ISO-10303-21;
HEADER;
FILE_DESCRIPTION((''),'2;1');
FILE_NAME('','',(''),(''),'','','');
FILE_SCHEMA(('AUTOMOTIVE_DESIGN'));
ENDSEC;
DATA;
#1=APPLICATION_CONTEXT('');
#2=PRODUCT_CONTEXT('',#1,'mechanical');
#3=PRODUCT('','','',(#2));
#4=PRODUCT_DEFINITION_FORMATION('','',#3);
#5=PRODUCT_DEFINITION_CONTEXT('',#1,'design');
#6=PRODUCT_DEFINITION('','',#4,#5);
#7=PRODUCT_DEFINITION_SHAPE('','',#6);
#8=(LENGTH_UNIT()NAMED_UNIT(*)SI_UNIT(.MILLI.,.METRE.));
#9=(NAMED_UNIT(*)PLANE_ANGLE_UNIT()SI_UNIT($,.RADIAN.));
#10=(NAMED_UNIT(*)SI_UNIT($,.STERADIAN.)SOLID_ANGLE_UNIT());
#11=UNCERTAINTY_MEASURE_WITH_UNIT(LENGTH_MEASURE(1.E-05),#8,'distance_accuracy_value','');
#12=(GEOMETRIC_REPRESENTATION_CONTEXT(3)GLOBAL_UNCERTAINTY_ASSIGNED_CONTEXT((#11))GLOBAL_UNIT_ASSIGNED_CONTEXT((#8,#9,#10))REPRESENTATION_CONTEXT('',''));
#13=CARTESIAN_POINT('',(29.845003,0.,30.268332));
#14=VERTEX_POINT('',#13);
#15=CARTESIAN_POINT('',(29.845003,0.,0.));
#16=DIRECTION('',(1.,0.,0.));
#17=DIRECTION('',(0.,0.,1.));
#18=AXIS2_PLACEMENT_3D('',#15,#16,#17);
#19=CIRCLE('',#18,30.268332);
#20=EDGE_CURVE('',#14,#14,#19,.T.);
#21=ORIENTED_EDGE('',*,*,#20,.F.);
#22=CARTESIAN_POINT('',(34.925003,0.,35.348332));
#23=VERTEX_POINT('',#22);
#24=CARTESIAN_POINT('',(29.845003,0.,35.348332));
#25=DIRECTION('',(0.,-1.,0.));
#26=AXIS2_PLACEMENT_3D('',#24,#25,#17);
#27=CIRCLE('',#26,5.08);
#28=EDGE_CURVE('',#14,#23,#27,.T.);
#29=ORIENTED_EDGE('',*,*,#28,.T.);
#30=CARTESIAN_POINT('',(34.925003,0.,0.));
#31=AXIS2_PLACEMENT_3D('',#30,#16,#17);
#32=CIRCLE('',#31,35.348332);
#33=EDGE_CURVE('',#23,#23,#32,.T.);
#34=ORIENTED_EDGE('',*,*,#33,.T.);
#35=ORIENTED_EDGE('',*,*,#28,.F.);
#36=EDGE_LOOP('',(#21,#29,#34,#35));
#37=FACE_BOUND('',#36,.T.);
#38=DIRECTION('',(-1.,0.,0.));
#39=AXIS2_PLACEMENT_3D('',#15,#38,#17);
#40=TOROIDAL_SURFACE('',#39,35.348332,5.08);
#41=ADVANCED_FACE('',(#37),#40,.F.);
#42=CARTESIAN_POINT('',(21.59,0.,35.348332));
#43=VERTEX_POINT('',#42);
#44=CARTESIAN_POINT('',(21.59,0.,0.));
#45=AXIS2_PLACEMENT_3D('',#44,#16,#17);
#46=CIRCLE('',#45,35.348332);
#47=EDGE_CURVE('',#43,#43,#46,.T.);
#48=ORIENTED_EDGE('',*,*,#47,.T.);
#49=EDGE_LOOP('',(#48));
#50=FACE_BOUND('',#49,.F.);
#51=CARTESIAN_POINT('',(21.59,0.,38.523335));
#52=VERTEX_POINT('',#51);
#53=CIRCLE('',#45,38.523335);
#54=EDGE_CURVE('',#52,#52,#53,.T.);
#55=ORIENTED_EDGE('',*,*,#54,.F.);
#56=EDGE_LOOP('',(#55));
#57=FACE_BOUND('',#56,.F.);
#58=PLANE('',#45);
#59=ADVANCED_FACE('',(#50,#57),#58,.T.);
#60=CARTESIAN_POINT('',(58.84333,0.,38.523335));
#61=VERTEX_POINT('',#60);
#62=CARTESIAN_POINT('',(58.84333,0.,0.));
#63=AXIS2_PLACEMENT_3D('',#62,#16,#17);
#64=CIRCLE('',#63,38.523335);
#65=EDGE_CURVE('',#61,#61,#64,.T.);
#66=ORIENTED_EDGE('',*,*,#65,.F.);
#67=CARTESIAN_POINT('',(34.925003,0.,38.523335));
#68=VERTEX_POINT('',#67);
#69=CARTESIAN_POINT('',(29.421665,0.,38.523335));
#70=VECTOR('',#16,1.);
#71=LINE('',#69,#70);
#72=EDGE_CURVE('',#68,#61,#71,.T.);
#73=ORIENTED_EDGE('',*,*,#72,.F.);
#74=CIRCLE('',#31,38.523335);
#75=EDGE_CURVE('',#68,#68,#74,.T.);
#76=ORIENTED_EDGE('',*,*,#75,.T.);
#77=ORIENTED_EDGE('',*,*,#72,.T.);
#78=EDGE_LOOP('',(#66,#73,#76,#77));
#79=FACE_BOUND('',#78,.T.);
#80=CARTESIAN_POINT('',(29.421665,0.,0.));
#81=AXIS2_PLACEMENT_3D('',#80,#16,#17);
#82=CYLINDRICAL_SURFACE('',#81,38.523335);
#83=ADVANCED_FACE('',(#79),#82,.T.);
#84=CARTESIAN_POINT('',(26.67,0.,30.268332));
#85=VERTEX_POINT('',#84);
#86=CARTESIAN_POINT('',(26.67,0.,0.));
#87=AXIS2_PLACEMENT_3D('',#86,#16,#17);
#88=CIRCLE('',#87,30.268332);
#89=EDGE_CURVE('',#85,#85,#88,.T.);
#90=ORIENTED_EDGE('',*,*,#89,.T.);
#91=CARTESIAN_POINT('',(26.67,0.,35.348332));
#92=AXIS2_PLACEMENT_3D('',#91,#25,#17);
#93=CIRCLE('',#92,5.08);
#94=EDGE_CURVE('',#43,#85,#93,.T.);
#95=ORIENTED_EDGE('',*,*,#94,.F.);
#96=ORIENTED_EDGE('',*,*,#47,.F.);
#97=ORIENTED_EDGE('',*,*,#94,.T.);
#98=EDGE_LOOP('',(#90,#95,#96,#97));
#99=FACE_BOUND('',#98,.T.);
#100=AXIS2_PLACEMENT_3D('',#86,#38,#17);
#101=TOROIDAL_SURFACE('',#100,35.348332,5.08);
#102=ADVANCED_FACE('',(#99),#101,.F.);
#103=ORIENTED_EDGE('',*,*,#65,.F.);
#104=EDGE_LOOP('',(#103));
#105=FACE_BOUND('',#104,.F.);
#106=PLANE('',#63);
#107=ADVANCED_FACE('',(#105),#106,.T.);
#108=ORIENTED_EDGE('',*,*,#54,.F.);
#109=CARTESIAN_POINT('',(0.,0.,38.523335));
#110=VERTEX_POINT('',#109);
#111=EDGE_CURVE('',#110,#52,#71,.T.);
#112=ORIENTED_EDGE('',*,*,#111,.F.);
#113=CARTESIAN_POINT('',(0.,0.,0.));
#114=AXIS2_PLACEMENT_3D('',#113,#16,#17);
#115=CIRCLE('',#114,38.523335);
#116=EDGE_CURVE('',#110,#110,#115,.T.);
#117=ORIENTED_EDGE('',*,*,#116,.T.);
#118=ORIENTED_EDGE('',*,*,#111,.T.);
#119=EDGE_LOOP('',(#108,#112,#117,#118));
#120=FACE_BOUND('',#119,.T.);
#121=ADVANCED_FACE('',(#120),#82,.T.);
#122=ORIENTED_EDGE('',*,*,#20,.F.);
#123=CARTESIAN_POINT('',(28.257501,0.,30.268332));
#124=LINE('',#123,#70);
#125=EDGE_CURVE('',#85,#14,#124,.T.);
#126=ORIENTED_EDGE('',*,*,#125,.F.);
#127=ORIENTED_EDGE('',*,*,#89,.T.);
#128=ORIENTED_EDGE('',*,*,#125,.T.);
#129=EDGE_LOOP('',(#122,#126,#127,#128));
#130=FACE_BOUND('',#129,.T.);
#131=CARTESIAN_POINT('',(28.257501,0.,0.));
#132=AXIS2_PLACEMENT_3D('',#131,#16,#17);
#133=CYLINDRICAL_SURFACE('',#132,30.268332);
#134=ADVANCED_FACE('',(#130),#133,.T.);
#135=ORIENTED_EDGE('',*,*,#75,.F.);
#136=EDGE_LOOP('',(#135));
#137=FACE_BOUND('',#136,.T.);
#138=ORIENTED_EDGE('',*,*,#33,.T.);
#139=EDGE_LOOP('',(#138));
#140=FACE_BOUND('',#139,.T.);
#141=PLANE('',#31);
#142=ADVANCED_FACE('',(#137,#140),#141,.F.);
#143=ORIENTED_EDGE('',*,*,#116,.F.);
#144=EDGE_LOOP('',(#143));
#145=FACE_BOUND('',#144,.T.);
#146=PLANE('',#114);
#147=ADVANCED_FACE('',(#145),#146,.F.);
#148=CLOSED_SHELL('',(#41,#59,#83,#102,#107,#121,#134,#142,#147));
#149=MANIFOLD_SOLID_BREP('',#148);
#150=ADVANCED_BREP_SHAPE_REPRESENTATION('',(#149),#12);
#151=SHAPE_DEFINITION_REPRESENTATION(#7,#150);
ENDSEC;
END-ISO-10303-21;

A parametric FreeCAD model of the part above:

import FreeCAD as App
import Part
import Sketcher
Q = App.Units.Quantity


def edges_at(feature, points):
    """Names of the edges that pass closest to the given points."""
    edges = feature.Shape.Edges
    near = lambda p: min(range(len(edges)), key=lambda i: edges[i].distToShape(Part.Vertex(*p))[0])
    return sorted({f"Edge{near(p) + 1}" for p in points})


def add_polygon(sketch, points):
    """Adds a closed chain of lines whose ends are joined by coincident constraints."""
    first, n = sketch.GeometryCount, len(points)
    for a, b in zip(points, points[1:] + points[:1]):
        sketch.addGeometry(Part.LineSegment(App.Vector(*a, 0), App.Vector(*b, 0)), False)
    for i in range(n):
        sketch.addConstraint(Sketcher.Constraint("Coincident", first + i, 2, first + (i + 1) % n, 1))

doc = App.newDocument("Part")
body = doc.addObject("PartDesign::Body", "Body")

sketch1 = body.newObject("Sketcher::SketchObject", "Sketch")
sketch1.AttachmentSupport = (doc.getObject("XZ_Plane"), [""])
sketch1.MapMode = "FlatFace"
add_polygon(sketch1, [(0, 39), (0, 0), (59, 0), (59, 39)])
sketch1.addConstraint(Sketcher.Constraint("Vertical", 0))
sketch1.addConstraint(Sketcher.Constraint("Horizontal", 1))
sketch1.addConstraint(Sketcher.Constraint("Vertical", 2))
sketch1.addConstraint(Sketcher.Constraint("Horizontal", 3))
sketch1.addConstraint(Sketcher.Constraint("Coincident", 0, 2, -1, 1))
sketch1.addConstraint(Sketcher.Constraint("DistanceX", 1, 1, 1, 2, 58.84333))
sketch1.addConstraint(Sketcher.Constraint("DistanceY", 0, 2, 0, 1, 38.523335))
revolution = body.newObject("PartDesign::Revolution", "Revolution")
revolution.Profile = sketch1
revolution.ReferenceAxis = (sketch1, ["H_Axis"])
revolution.Angle = 360

sketch2 = body.newObject("Sketcher::SketchObject", "Sketch001")
sketch2.AttachmentSupport = (doc.getObject("XZ_Plane"), [""])
sketch2.MapMode = "FlatFace"
add_polygon(sketch2, [(22, 41), (22, 30), (35, 30), (35, 41)])
sketch2.addConstraint(Sketcher.Constraint("Vertical", 0))
sketch2.addConstraint(Sketcher.Constraint("Horizontal", 1))
sketch2.addConstraint(Sketcher.Constraint("Vertical", 2))
sketch2.addConstraint(Sketcher.Constraint("Horizontal", 3))
sketch2.addConstraint(Sketcher.Constraint("DistanceX", 1, 1, 1, 2, Q("0.5250001 in")))
sketch2.addConstraint(Sketcher.Constraint("DistanceX", -1, 1, 0, 2, Q("0.85 in")))
sketch2.addConstraint(Sketcher.Constraint("DistanceY", 0, 2, 0, 1, 11.218334))
sketch2.addConstraint(Sketcher.Constraint("DistanceY", -1, 1, 0, 2, 30.268332))
groove = body.newObject("PartDesign::Groove", "Groove")
groove.Profile = sketch2
groove.ReferenceAxis = (sketch2, ["H_Axis"])
groove.Angle = 360
doc.recompute()

fillet = body.newObject("PartDesign::Fillet", "Fillet")
fillet.Base = (groove, edges_at(groove, [(21.59, 0, -30.268), (34.925, 0, -30.268), (28.258, 0, 30.268)]))
fillet.Radius = Q("0.2 in")

doc.recompute()
